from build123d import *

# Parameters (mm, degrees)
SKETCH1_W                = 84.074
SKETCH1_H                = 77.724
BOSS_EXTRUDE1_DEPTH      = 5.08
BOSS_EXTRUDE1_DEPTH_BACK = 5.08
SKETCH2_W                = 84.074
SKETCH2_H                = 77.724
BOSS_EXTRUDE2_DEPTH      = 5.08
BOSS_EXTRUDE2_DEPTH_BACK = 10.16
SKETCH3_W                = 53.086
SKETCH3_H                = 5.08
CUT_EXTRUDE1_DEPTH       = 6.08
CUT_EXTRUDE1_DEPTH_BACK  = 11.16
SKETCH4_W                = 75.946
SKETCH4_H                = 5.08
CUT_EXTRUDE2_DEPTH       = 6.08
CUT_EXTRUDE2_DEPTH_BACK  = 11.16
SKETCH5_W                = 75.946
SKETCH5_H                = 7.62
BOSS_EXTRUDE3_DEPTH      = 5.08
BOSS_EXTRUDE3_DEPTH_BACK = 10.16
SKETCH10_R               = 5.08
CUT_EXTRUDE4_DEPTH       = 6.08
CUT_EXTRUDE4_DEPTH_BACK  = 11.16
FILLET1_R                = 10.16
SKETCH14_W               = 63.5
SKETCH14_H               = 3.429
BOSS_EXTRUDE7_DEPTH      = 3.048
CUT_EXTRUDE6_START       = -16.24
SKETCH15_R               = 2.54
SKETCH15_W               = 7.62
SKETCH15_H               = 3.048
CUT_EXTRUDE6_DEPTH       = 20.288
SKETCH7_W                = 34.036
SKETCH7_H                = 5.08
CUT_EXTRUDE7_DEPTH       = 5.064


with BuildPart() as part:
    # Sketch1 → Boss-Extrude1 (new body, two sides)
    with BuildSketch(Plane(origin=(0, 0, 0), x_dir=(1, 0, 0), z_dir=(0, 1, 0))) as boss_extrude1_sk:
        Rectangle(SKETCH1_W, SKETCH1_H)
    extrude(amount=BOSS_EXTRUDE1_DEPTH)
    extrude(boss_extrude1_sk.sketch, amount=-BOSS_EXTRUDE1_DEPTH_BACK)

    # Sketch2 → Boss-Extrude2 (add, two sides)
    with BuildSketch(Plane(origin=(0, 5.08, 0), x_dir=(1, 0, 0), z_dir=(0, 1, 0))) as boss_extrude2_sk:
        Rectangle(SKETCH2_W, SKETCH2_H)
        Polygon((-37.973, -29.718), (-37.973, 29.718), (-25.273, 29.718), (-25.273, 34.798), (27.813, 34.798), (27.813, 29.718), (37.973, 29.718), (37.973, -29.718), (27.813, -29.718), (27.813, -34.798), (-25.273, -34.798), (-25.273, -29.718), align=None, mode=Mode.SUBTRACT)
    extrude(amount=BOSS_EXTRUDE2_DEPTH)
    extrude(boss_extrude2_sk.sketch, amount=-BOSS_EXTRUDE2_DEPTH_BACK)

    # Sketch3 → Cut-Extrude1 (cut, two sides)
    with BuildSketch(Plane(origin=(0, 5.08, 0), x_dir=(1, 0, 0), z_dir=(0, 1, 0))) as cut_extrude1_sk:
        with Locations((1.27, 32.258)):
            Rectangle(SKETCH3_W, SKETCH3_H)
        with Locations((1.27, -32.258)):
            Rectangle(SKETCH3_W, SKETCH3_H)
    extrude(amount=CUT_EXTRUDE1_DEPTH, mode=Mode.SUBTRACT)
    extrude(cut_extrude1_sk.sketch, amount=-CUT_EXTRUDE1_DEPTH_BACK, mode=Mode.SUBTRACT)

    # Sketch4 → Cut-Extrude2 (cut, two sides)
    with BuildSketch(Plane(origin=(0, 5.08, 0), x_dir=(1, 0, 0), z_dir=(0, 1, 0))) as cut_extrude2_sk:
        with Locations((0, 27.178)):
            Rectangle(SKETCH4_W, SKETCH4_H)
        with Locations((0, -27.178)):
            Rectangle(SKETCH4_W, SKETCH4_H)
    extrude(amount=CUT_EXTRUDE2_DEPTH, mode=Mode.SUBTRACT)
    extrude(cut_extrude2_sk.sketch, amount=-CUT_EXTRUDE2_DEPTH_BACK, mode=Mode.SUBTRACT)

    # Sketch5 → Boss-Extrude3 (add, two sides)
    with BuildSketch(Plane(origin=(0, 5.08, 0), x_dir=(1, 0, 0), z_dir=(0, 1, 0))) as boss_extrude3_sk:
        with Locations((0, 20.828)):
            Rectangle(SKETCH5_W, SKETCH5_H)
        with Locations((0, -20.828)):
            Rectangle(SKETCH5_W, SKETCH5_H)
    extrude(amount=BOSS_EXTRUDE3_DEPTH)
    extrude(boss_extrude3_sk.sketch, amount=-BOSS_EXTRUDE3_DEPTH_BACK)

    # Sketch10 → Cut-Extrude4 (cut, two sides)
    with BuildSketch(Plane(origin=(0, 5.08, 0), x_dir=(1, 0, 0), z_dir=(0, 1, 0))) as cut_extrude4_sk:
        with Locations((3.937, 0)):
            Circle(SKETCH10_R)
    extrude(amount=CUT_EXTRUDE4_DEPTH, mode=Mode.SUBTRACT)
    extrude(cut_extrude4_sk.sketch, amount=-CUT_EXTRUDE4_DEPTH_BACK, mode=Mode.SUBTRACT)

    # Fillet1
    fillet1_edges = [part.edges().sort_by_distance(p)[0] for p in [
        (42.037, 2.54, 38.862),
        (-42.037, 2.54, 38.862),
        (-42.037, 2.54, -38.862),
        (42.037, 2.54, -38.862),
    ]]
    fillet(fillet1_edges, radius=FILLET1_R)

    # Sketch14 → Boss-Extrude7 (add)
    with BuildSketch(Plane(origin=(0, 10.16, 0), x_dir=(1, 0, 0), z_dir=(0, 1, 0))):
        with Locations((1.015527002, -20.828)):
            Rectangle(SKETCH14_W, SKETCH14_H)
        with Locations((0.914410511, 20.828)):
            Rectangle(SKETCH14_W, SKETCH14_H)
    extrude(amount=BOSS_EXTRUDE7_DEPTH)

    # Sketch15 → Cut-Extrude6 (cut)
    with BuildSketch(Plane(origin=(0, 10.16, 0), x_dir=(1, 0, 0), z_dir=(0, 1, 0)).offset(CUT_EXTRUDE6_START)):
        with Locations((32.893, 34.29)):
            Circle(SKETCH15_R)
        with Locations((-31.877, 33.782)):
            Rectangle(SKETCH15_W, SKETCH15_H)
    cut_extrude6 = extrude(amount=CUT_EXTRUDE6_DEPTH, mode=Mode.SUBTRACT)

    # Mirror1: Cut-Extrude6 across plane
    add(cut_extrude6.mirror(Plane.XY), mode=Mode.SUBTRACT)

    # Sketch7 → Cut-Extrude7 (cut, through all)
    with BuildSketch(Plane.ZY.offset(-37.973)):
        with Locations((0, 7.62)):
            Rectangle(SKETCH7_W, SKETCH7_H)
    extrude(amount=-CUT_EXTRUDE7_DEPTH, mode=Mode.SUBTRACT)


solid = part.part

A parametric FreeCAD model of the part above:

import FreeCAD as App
import Part
import Sketcher
from FreeCAD import Vector
Q = App.Units.Quantity


def edges_at(feature, points):
    """Names of the edges that pass closest to the given points."""
    edges = feature.Shape.Edges
    near = lambda p: min(range(len(edges)), key=lambda i: edges[i].distToShape(Part.Vertex(*p))[0])
    return sorted({f"Edge{near(p) + 1}" for p in points})

doc = App.newDocument("Part")
body = doc.addObject("PartDesign::Body", "Body")

sketch1 = body.newObject("Sketcher::SketchObject", "Sketch")
sketch1.AttachmentSupport = (doc.getObject("XZ_Plane"), [""])
sketch1.MapMode = "FlatFace"
sketch1.addGeometry([
    Part.LineSegment(Vector(-42, -39, 0), Vector(-42, 39, 0)),
    Part.LineSegment(Vector(-42, 39, 0), Vector(42, 39, 0)),
    Part.LineSegment(Vector(42, 39, 0), Vector(42, -39, 0)),
    Part.LineSegment(Vector(42, -39, 0), Vector(-42, -39, 0)),
], False)
sketch1.addConstraint([
    Sketcher.Constraint("Coincident", 0, 2, 1, 1),
    Sketcher.Constraint("Coincident", 1, 2, 2, 1),
    Sketcher.Constraint("Coincident", 2, 2, 3, 1),
    Sketcher.Constraint("Coincident", 3, 2, 0, 1),
    Sketcher.Constraint("Vertical", 0),
    Sketcher.Constraint("Horizontal", 1),
    Sketcher.Constraint("Vertical", 2),
    Sketcher.Constraint("Horizontal", 3),
    Sketcher.Constraint("Symmetric", 0, 2, 2, 2, -1, 1),
    Sketcher.Constraint("DistanceX", 1, 1, 1, 2, Q("3.31 in")),
    Sketcher.Constraint("DistanceY", 0, 1, 0, 2, Q("3.06 in")),
])
pad1 = body.newObject("PartDesign::Pad", "Pad")
pad1.Profile = sketch1
pad1.Type = "TwoLengths"
pad1.Length = Q("0.2 in")
pad1.Length2 = Q("0.2 in")
pad1.Reversed = True

sketch2 = body.newObject("Sketcher::SketchObject", "Sketch001")
sketch2.AttachmentSupport = (doc.getObject("XZ_Plane"), [""])
sketch2.MapMode = "FlatFace"
sketch2.AttachmentOffset = App.Placement(Vector(0, 0, -0.2 * 25.4), App.Rotation())
sketch2.addGeometry([
    Part.LineSegment(Vector(-42, -39, 0), Vector(-42, 39, 0)),
    Part.LineSegment(Vector(-42, 39, 0), Vector(42, 39, 0)),
    Part.LineSegment(Vector(42, 39, 0), Vector(42, -39, 0)),
    Part.LineSegment(Vector(42, -39, 0), Vector(-42, -39, 0)),
    Part.LineSegment(Vector(-25, 30, 0), Vector(-38, 30, 0)),
    Part.LineSegment(Vector(-38, 30, 0), Vector(-38, -30, 0)),
    Part.LineSegment(Vector(-38, -30, 0), Vector(-25, -30, 0)),
    Part.LineSegment(Vector(-25, -30, 0), Vector(-25, -35, 0)),
    Part.LineSegment(Vector(-25, -35, 0), Vector(28, -35, 0)),
    Part.LineSegment(Vector(28, -35, 0), Vector(28, -30, 0)),
    Part.LineSegment(Vector(28, -30, 0), Vector(38, -30, 0)),
    Part.LineSegment(Vector(38, -30, 0), Vector(38, 30, 0)),
    Part.LineSegment(Vector(38, 30, 0), Vector(28, 30, 0)),
    Part.LineSegment(Vector(28, 30, 0), Vector(28, 35, 0)),
    Part.LineSegment(Vector(28, 35, 0), Vector(-25, 35, 0)),
    Part.LineSegment(Vector(-25, 35, 0), Vector(-25, 30, 0)),
], False)
sketch2.addConstraint([
    Sketcher.Constraint("Coincident", 0, 2, 1, 1),
    Sketcher.Constraint("Coincident", 1, 2, 2, 1),
    Sketcher.Constraint("Coincident", 2, 2, 3, 1),
    Sketcher.Constraint("Coincident", 3, 2, 0, 1),
    Sketcher.Constraint("Coincident", 4, 2, 5, 1),
    Sketcher.Constraint("Coincident", 5, 2, 6, 1),
    Sketcher.Constraint("Coincident", 6, 2, 7, 1),
    Sketcher.Constraint("Coincident", 7, 2, 8, 1),
    Sketcher.Constraint("Coincident", 8, 2, 9, 1),
    Sketcher.Constraint("Coincident", 9, 2, 10, 1),
    Sketcher.Constraint("Coincident", 10, 2, 11, 1),
    Sketcher.Constraint("Coincident", 11, 2, 12, 1),
    Sketcher.Constraint("Coincident", 12, 2, 13, 1),
    Sketcher.Constraint("Coincident", 13, 2, 14, 1),
    Sketcher.Constraint("Coincident", 14, 2, 15, 1),
    Sketcher.Constraint("Coincident", 15, 2, 4, 1),
    Sketcher.Constraint("Vertical", 0),
    Sketcher.Constraint("Horizontal", 1),
    Sketcher.Constraint("Vertical", 2),
    Sketcher.Constraint("Horizontal", 3),
    Sketcher.Constraint("Horizontal", 4),
    Sketcher.Constraint("Vertical", 5),
    Sketcher.Constraint("Horizontal", 6),
    Sketcher.Constraint("Vertical", 7),
    Sketcher.Constraint("Horizontal", 8),
    Sketcher.Constraint("Vertical", 9),
    Sketcher.Constraint("Horizontal", 10),
    Sketcher.Constraint("Vertical", 11),
    Sketcher.Constraint("Horizontal", 12),
    Sketcher.Constraint("Vertical", 13),
    Sketcher.Constraint("Horizontal", 14),
    Sketcher.Constraint("Vertical", 15),
    Sketcher.Constraint("Symmetric", 0, 2, 2, 2, -1, 1),
    Sketcher.Constraint("Symmetric", 4, 2, 10, 2, -1, 1),
    Sketcher.Constraint("Symmetric", 9, 2, 12, 2, -1),
    Sketcher.Constraint("Symmetric", 7, 2, 14, 2, -1),
    Sketcher.Constraint("Horizontal", 6, 2, 9, 2),
    Sketcher.Constraint("DistanceX", 4, 2, 4, 1, Q("0.5 in")),
    Sketcher.Constraint("DistanceX", 10, 1, 10, 2, Q("0.4 in")),
    Sketcher.Constraint("DistanceY", 7, 2, 7, 1, Q("0.2 in")),
    Sketcher.Constraint("DistanceX", 1, 1, 1, 2, Q("3.31 in")),
    Sketcher.Constraint("DistanceX", 8, 1, 8, 2, Q("2.09 in")),
    Sketcher.Constraint("DistanceY", 0, 1, 0, 2, Q("3.06 in")),
    Sketcher.Constraint("DistanceY", 5, 2, 5, 1, Q("2.34 in")),
])
pad2 = body.newObject("PartDesign::Pad", "Pad001")
pad2.Profile = sketch2
pad2.Type = "TwoLengths"
pad2.Length = Q("0.2 in")
pad2.Length2 = Q("0.4 in")
pad2.Reversed = True

sketch3 = body.newObject("Sketcher::SketchObject", "Sketch002")
sketch3.AttachmentSupport = (doc.getObject("XZ_Plane"), [""])
sketch3.MapMode = "FlatFace"
sketch3.AttachmentOffset = App.Placement(Vector(0, 0, -0.2 * 25.4), App.Rotation())
sketch3.addGeometry([
    Part.LineSegment(Vector(-25, -35, 0), Vector(-25, -30, 0)),
    Part.LineSegment(Vector(-25, -30, 0), Vector(28, -30, 0)),
    Part.LineSegment(Vector(28, -30, 0), Vector(28, -35, 0)),
    Part.LineSegment(Vector(28, -35, 0), Vector(-25, -35, 0)),
    Part.LineSegment(Vector(-25, 30, 0), Vector(-25, 35, 0)),
    Part.LineSegment(Vector(-25, 35, 0), Vector(28, 35, 0)),
    Part.LineSegment(Vector(28, 35, 0), Vector(28, 30, 0)),
    Part.LineSegment(Vector(28, 30, 0), Vector(-25, 30, 0)),
], False)
sketch3.addConstraint([
    Sketcher.Constraint("Coincident", 0, 2, 1, 1),
    Sketcher.Constraint("Coincident", 1, 2, 2, 1),
    Sketcher.Constraint("Coincident", 2, 2, 3, 1),
    Sketcher.Constraint("Coincident", 3, 2, 0, 1),
    Sketcher.Constraint("Coincident", 4, 2, 5, 1),
    Sketcher.Constraint("Coincident", 5, 2, 6, 1),
    Sketcher.Constraint("Coincident", 6, 2, 7, 1),
    Sketcher.Constraint("Coincident", 7, 2, 4, 1),
    Sketcher.Constraint("Vertical", 0),
    Sketcher.Constraint("Horizontal", 1),
    Sketcher.Constraint("Vertical", 2),
    Sketcher.Constraint("Horizontal", 3),
    Sketcher.Constraint("Vertical", 4),
    Sketcher.Constraint("Horizontal", 5),
    Sketcher.Constraint("Vertical", 6),
    Sketcher.Constraint("Horizontal", 7),
    Sketcher.Constraint("Symmetric", 3, 2, 4, 2, -1),
    Sketcher.Constraint("Symmetric", 1, 2, 6, 2, -1),
    Sketcher.Constraint("DistanceY", 0, 1, 0, 2, Q("0.2 in")),
    Sketcher.Constraint("DistanceX", 1, 1, 1, 2, Q("2.09 in")),
    Sketcher.Constraint("DistanceY", 0, 2, -1, 1, Q("1.17 in")),
    Sketcher.Constraint("DistanceX", 0, 2, -1, 1, Q("0.995 in")),
])
pocket1 = body.newObject("PartDesign::Pocket", "Pocket")
pocket1.Profile = sketch3
pocket1.Type = "ThroughAll"
pocket1.Midplane = True

sketch4 = body.newObject("Sketcher::SketchObject", "Sketch003")
sketch4.AttachmentSupport = (doc.getObject("XZ_Plane"), [""])
sketch4.MapMode = "FlatFace"
sketch4.AttachmentOffset = App.Placement(Vector(0, 0, -0.2 * 25.4), App.Rotation())
sketch4.addGeometry([
    Part.LineSegment(Vector(-38, -30, 0), Vector(-38, -25, 0)),
    Part.LineSegment(Vector(-38, -25, 0), Vector(38, -25, 0)),
    Part.LineSegment(Vector(38, -25, 0), Vector(38, -30, 0)),
    Part.LineSegment(Vector(38, -30, 0), Vector(-38, -30, 0)),
    Part.LineSegment(Vector(-38, 25, 0), Vector(-38, 30, 0)),
    Part.LineSegment(Vector(-38, 30, 0), Vector(38, 30, 0)),
    Part.LineSegment(Vector(38, 30, 0), Vector(38, 25, 0)),
    Part.LineSegment(Vector(38, 25, 0), Vector(-38, 25, 0)),
], False)
sketch4.addConstraint([
    Sketcher.Constraint("Coincident", 0, 2, 1, 1),
    Sketcher.Constraint("Coincident", 1, 2, 2, 1),
    Sketcher.Constraint("Coincident", 2, 2, 3, 1),
    Sketcher.Constraint("Coincident", 3, 2, 0, 1),
    Sketcher.Constraint("Coincident", 4, 2, 5, 1),
    Sketcher.Constraint("Coincident", 5, 2, 6, 1),
    Sketcher.Constraint("Coincident", 6, 2, 7, 1),
    Sketcher.Constraint("Coincident", 7, 2, 4, 1),
    Sketcher.Constraint("Vertical", 0),
    Sketcher.Constraint("Horizontal", 1),
    Sketcher.Constraint("Vertical", 2),
    Sketcher.Constraint("Horizontal", 3),
    Sketcher.Constraint("Vertical", 4),
    Sketcher.Constraint("Horizontal", 5),
    Sketcher.Constraint("Vertical", 6),
    Sketcher.Constraint("Horizontal", 7),
    Sketcher.Constraint("Symmetric", 2, 2, 4, 2, -1, 1),
    Sketcher.Constraint("Symmetric", 0, 2, 6, 2, -1, 1),
    Sketcher.Constraint("Vertical", 3, 2, 4, 2),
    Sketcher.Constraint("DistanceY", 0, 1, 0, 2, Q("0.2 in")),
    Sketcher.Constraint("DistanceX", 1, 1, 1, 2, Q("2.99 in")),
    Sketcher.Constraint("DistanceY", 0, 2, -1, 1, Q("0.97 in")),
])
pocket2 = body.newObject("PartDesign::Pocket", "Pocket001")
pocket2.Profile = sketch4
pocket2.Type = "ThroughAll"
pocket2.Midplane = True

sketch5 = body.newObject("Sketcher::SketchObject", "Sketch004")
sketch5.AttachmentSupport = (doc.getObject("XZ_Plane"), [""])
sketch5.MapMode = "FlatFace"
sketch5.AttachmentOffset = App.Placement(Vector(0, 0, -0.2 * 25.4), App.Rotation())
sketch5.addGeometry([
    Part.LineSegment(Vector(-38, -25, 0), Vector(-38, -17, 0)),
    Part.LineSegment(Vector(-38, -17, 0), Vector(38, -17, 0)),
    Part.LineSegment(Vector(38, -17, 0), Vector(38, -25, 0)),
    Part.LineSegment(Vector(38, -25, 0), Vector(-38, -25, 0)),
    Part.LineSegment(Vector(-38, 17, 0), Vector(-38, 25, 0)),
    Part.LineSegment(Vector(-38, 25, 0), Vector(38, 25, 0)),
    Part.LineSegment(Vector(38, 25, 0), Vector(38, 17, 0)),
    Part.LineSegment(Vector(38, 17, 0), Vector(-38, 17, 0)),
], False)
sketch5.addConstraint([
    Sketcher.Constraint("Coincident", 0, 2, 1, 1),
    Sketcher.Constraint("Coincident", 1, 2, 2, 1),
    Sketcher.Constraint("Coincident", 2, 2, 3, 1),
    Sketcher.Constraint("Coincident", 3, 2, 0, 1),
    Sketcher.Constraint("Coincident", 4, 2, 5, 1),
    Sketcher.Constraint("Coincident", 5, 2, 6, 1),
    Sketcher.Constraint("Coincident", 6, 2, 7, 1),
    Sketcher.Constraint("Coincident", 7, 2, 4, 1),
    Sketcher.Constraint("Vertical", 0),
    Sketcher.Constraint("Horizontal", 1),
    Sketcher.Constraint("Vertical", 2),
    Sketcher.Constraint("Horizontal", 3),
    Sketcher.Constraint("Vertical", 4),
    Sketcher.Constraint("Horizontal", 5),
    Sketcher.Constraint("Vertical", 6),
    Sketcher.Constraint("Horizontal", 7),
    Sketcher.Constraint("Symmetric", 2, 2, 4, 2, -1, 1),
    Sketcher.Constraint("Symmetric", 0, 2, 6, 2, -1, 1),
    Sketcher.Constraint("Vertical", 3, 2, 4, 2),
    Sketcher.Constraint("DistanceY", 0, 1, 0, 2, Q("0.3 in")),
    Sketcher.Constraint("DistanceX", 1, 1, 1, 2, Q("2.99 in")),
    Sketcher.Constraint("DistanceY", 0, 2, -1, 1, Q("0.67 in")),
])
pad3 = body.newObject("PartDesign::Pad", "Pad002")
pad3.Profile = sketch5
pad3.Type = "TwoLengths"
pad3.Length = Q("0.2 in")
pad3.Length2 = Q("0.4 in")
pad3.Reversed = True

sketch6 = body.newObject("Sketcher::SketchObject", "Sketch005")
sketch6.AttachmentSupport = (doc.getObject("XZ_Plane"), [""])
sketch6.MapMode = "FlatFace"
sketch6.AttachmentOffset = App.Placement(Vector(0, 0, -0.2 * 25.4), App.Rotation())
sketch6.addGeometry(Part.Circle(Vector(4, 0, 0), Vector(0, 0, 1), 5), False)
sketch6.addConstraint([
    Sketcher.Constraint("PointOnObject", 0, 3, -1),
    Sketcher.Constraint("Diameter", 0, Q("0.4 in")),
    Sketcher.Constraint("DistanceX", -1, 1, 0, 3, Q("0.155 in")),
])
pocket3 = body.newObject("PartDesign::Pocket", "Pocket002")
pocket3.Profile = sketch6
pocket3.Type = "ThroughAll"
pocket3.Midplane = True
doc.recompute()

fillet = body.newObject("PartDesign::Fillet", "Fillet")
fillet.Base = (pocket3, edges_at(pocket3, [
    (42.037, 2.54, 38.862),
    (-42.037, 2.54, 38.862),
    (-42.037, 2.54, -38.862),
    (42.037, 2.54, -38.862),
]))
fillet.Radius = Q("0.4 in")

sketch7 = body.newObject("Sketcher::SketchObject", "Sketch006")
sketch7.AttachmentSupport = (doc.getObject("XZ_Plane"), [""])
sketch7.MapMode = "FlatFace"
sketch7.AttachmentOffset = App.Placement(Vector(0, 0, -0.4 * 25.4), App.Rotation())
sketch7.addGeometry([
    Part.LineSegment(Vector(-30.7, 19.1, 0), Vector(-30.7, 22.5, 0)),
    Part.LineSegment(Vector(-30.7, 22.5, 0), Vector(32.8, 22.5, 0)),
    Part.LineSegment(Vector(32.8, 22.5, 0), Vector(32.8, 19.1, 0)),
    Part.LineSegment(Vector(32.8, 19.1, 0), Vector(-30.7, 19.1, 0)),
    Part.LineSegment(Vector(-30.8, -22.5, 0), Vector(-30.8, -19.1, 0)),
    Part.LineSegment(Vector(-30.8, -19.1, 0), Vector(32.7, -19.1, 0)),
    Part.LineSegment(Vector(32.7, -19.1, 0), Vector(32.7, -22.5, 0)),
    Part.LineSegment(Vector(32.7, -22.5, 0), Vector(-30.8, -22.5, 0)),
], False)
sketch7.addConstraint([
    Sketcher.Constraint("Coincident", 0, 2, 1, 1),
    Sketcher.Constraint("Coincident", 1, 2, 2, 1),
    Sketcher.Constraint("Coincident", 2, 2, 3, 1),
    Sketcher.Constraint("Coincident", 3, 2, 0, 1),
    Sketcher.Constraint("Coincident", 4, 2, 5, 1),
    Sketcher.Constraint("Coincident", 5, 2, 6, 1),
    Sketcher.Constraint("Coincident", 6, 2, 7, 1),
    Sketcher.Constraint("Coincident", 7, 2, 4, 1),
    Sketcher.Constraint("Vertical", 0),
    Sketcher.Constraint("Horizontal", 1),
    Sketcher.Constraint("Vertical", 2),
    Sketcher.Constraint("Horizontal", 3),
    Sketcher.Constraint("Vertical", 4),
    Sketcher.Constraint("Horizontal", 5),
    Sketcher.Constraint("Vertical", 6),
    Sketcher.Constraint("Horizontal", 7),
    Sketcher.Constraint("Equal", 3, 5),
    Sketcher.Constraint("Equal", 2, 4),
    Sketcher.Constraint("DistanceX", 1, 1, 1, 2, Q("2.5 in")),
    Sketcher.Constraint("DistanceY", 0, 1, 0, 2, Q("0.135 in")),
    Sketcher.Constraint("DistanceY", 4, 2, 0, 2, Q("1.64 in")),
    Sketcher.Constraint("DistanceY", -1, 1, 0, 2, Q("0.8875 in")),
    Sketcher.Constraint("DistanceX", 4, 2, -1, 1, 30.835589),
    Sketcher.Constraint("DistanceX", 0, 2, -1, 1, 30.734473),
])
pad4 = body.newObject("PartDesign::Pad", "Pad003")
pad4.Profile = sketch7
pad4.Length = Q("0.12 in")
pad4.Reversed = True

sketch8 = body.newObject("Sketcher::SketchObject", "Sketch007")
sketch8.AttachmentSupport = (doc.getObject("XZ_Plane"), [""])
sketch8.MapMode = "FlatFace"
sketch8.AttachmentOffset = App.Placement(Vector(0, 0, 6.08), App.Rotation())
sketch8.addGeometry([
    Part.Circle(Vector(32.9, -34.3, 0), Vector(0, 0, 1), 2.5),
    Part.LineSegment(Vector(-35.7, -35.3, 0), Vector(-35.7, -32.3, 0)),
    Part.LineSegment(Vector(-35.7, -32.3, 0), Vector(-28.1, -32.3, 0)),
    Part.LineSegment(Vector(-28.1, -32.3, 0), Vector(-28.1, -35.3, 0)),
    Part.LineSegment(Vector(-28.1, -35.3, 0), Vector(-35.7, -35.3, 0)),
], False)
sketch8.addConstraint([
    Sketcher.Constraint("Coincident", 1, 2, 2, 1),
    Sketcher.Constraint("Coincident", 2, 2, 3, 1),
    Sketcher.Constraint("Coincident", 3, 2, 4, 1),
    Sketcher.Constraint("Coincident", 4, 2, 1, 1),
    Sketcher.Constraint("Vertical", 1),
    Sketcher.Constraint("Horizontal", 2),
    Sketcher.Constraint("Vertical", 3),
    Sketcher.Constraint("Horizontal", 4),
    Sketcher.Constraint("Diameter", 0, Q("0.2 in")),
    Sketcher.Constraint("DistanceX", 2, 1, 2, 2, Q("0.3 in")),
    Sketcher.Constraint("DistanceY", 1, 1, 1, 2, Q("0.12 in")),
    Sketcher.Constraint("DistanceX", 1, 2, 0, 3, Q("2.7 in")),
    Sketcher.Constraint("DistanceY", 0, 3, -1, 1, Q("1.35 in")),
    Sketcher.Constraint("DistanceY", 1, 2, -1, 1, Q("1.27 in")),
    Sketcher.Constraint("DistanceX", -1, 1, 0, 3, Q("1.295 in")),
])
pocket4 = body.newObject("PartDesign::Pocket", "Pocket003")
pocket4.Profile = sketch8
pocket4.Length = 20.288
doc.recompute()

mirrored = body.newObject("PartDesign::Mirrored", "Mirrored")
mirrored.Originals = [pocket4]
mirrored.MirrorPlane = (doc.getObject("XY_Plane"), [""])
body.Tip = mirrored

sketch9 = body.newObject("Sketcher::SketchObject", "Sketch008")
sketch9.AttachmentSupport = (doc.getObject("YZ_Plane"), [""])
sketch9.MapMode = "FlatFace"
sketch9.AttachmentOffset = App.Placement(Vector(0, 0, 1.495 * 25.4), App.Rotation())
sketch9.addGeometry([
    Part.LineSegment(Vector(10, -17, 0), Vector(5, -17, 0)),
    Part.LineSegment(Vector(5, -17, 0), Vector(5, 17, 0)),
    Part.LineSegment(Vector(5, 17, 0), Vector(10, 17, 0)),
    Part.LineSegment(Vector(10, 17, 0), Vector(10, -17, 0)),
], False)
sketch9.addConstraint([
    Sketcher.Constraint("Coincident", 0, 2, 1, 1),
    Sketcher.Constraint("Coincident", 1, 2, 2, 1),
    Sketcher.Constraint("Coincident", 2, 2, 3, 1),
    Sketcher.Constraint("Coincident", 3, 2, 0, 1),
    Sketcher.Constraint("Horizontal", 0),
    Sketcher.Constraint("Vertical", 1),
    Sketcher.Constraint("Horizontal", 2),
    Sketcher.Constraint("Vertical", 3),
    Sketcher.Constraint("DistanceX", 0, 2, 0, 1, Q("0.2 in")),
    Sketcher.Constraint("DistanceY", 1, 1, 1, 2, Q("1.34 in")),
    Sketcher.Constraint("DistanceX", -1, 1, 0, 2, Q("0.2 in")),
    Sketcher.Constraint("DistanceY", 0, 2, -1, 1, Q("0.67 in")),
])
pocket5 = body.newObject("PartDesign::Pocket", "Pocket004")
pocket5.Profile = sketch9
pocket5.Type = "ThroughAll"
pocket5.Reversed = True

doc.recompute()
